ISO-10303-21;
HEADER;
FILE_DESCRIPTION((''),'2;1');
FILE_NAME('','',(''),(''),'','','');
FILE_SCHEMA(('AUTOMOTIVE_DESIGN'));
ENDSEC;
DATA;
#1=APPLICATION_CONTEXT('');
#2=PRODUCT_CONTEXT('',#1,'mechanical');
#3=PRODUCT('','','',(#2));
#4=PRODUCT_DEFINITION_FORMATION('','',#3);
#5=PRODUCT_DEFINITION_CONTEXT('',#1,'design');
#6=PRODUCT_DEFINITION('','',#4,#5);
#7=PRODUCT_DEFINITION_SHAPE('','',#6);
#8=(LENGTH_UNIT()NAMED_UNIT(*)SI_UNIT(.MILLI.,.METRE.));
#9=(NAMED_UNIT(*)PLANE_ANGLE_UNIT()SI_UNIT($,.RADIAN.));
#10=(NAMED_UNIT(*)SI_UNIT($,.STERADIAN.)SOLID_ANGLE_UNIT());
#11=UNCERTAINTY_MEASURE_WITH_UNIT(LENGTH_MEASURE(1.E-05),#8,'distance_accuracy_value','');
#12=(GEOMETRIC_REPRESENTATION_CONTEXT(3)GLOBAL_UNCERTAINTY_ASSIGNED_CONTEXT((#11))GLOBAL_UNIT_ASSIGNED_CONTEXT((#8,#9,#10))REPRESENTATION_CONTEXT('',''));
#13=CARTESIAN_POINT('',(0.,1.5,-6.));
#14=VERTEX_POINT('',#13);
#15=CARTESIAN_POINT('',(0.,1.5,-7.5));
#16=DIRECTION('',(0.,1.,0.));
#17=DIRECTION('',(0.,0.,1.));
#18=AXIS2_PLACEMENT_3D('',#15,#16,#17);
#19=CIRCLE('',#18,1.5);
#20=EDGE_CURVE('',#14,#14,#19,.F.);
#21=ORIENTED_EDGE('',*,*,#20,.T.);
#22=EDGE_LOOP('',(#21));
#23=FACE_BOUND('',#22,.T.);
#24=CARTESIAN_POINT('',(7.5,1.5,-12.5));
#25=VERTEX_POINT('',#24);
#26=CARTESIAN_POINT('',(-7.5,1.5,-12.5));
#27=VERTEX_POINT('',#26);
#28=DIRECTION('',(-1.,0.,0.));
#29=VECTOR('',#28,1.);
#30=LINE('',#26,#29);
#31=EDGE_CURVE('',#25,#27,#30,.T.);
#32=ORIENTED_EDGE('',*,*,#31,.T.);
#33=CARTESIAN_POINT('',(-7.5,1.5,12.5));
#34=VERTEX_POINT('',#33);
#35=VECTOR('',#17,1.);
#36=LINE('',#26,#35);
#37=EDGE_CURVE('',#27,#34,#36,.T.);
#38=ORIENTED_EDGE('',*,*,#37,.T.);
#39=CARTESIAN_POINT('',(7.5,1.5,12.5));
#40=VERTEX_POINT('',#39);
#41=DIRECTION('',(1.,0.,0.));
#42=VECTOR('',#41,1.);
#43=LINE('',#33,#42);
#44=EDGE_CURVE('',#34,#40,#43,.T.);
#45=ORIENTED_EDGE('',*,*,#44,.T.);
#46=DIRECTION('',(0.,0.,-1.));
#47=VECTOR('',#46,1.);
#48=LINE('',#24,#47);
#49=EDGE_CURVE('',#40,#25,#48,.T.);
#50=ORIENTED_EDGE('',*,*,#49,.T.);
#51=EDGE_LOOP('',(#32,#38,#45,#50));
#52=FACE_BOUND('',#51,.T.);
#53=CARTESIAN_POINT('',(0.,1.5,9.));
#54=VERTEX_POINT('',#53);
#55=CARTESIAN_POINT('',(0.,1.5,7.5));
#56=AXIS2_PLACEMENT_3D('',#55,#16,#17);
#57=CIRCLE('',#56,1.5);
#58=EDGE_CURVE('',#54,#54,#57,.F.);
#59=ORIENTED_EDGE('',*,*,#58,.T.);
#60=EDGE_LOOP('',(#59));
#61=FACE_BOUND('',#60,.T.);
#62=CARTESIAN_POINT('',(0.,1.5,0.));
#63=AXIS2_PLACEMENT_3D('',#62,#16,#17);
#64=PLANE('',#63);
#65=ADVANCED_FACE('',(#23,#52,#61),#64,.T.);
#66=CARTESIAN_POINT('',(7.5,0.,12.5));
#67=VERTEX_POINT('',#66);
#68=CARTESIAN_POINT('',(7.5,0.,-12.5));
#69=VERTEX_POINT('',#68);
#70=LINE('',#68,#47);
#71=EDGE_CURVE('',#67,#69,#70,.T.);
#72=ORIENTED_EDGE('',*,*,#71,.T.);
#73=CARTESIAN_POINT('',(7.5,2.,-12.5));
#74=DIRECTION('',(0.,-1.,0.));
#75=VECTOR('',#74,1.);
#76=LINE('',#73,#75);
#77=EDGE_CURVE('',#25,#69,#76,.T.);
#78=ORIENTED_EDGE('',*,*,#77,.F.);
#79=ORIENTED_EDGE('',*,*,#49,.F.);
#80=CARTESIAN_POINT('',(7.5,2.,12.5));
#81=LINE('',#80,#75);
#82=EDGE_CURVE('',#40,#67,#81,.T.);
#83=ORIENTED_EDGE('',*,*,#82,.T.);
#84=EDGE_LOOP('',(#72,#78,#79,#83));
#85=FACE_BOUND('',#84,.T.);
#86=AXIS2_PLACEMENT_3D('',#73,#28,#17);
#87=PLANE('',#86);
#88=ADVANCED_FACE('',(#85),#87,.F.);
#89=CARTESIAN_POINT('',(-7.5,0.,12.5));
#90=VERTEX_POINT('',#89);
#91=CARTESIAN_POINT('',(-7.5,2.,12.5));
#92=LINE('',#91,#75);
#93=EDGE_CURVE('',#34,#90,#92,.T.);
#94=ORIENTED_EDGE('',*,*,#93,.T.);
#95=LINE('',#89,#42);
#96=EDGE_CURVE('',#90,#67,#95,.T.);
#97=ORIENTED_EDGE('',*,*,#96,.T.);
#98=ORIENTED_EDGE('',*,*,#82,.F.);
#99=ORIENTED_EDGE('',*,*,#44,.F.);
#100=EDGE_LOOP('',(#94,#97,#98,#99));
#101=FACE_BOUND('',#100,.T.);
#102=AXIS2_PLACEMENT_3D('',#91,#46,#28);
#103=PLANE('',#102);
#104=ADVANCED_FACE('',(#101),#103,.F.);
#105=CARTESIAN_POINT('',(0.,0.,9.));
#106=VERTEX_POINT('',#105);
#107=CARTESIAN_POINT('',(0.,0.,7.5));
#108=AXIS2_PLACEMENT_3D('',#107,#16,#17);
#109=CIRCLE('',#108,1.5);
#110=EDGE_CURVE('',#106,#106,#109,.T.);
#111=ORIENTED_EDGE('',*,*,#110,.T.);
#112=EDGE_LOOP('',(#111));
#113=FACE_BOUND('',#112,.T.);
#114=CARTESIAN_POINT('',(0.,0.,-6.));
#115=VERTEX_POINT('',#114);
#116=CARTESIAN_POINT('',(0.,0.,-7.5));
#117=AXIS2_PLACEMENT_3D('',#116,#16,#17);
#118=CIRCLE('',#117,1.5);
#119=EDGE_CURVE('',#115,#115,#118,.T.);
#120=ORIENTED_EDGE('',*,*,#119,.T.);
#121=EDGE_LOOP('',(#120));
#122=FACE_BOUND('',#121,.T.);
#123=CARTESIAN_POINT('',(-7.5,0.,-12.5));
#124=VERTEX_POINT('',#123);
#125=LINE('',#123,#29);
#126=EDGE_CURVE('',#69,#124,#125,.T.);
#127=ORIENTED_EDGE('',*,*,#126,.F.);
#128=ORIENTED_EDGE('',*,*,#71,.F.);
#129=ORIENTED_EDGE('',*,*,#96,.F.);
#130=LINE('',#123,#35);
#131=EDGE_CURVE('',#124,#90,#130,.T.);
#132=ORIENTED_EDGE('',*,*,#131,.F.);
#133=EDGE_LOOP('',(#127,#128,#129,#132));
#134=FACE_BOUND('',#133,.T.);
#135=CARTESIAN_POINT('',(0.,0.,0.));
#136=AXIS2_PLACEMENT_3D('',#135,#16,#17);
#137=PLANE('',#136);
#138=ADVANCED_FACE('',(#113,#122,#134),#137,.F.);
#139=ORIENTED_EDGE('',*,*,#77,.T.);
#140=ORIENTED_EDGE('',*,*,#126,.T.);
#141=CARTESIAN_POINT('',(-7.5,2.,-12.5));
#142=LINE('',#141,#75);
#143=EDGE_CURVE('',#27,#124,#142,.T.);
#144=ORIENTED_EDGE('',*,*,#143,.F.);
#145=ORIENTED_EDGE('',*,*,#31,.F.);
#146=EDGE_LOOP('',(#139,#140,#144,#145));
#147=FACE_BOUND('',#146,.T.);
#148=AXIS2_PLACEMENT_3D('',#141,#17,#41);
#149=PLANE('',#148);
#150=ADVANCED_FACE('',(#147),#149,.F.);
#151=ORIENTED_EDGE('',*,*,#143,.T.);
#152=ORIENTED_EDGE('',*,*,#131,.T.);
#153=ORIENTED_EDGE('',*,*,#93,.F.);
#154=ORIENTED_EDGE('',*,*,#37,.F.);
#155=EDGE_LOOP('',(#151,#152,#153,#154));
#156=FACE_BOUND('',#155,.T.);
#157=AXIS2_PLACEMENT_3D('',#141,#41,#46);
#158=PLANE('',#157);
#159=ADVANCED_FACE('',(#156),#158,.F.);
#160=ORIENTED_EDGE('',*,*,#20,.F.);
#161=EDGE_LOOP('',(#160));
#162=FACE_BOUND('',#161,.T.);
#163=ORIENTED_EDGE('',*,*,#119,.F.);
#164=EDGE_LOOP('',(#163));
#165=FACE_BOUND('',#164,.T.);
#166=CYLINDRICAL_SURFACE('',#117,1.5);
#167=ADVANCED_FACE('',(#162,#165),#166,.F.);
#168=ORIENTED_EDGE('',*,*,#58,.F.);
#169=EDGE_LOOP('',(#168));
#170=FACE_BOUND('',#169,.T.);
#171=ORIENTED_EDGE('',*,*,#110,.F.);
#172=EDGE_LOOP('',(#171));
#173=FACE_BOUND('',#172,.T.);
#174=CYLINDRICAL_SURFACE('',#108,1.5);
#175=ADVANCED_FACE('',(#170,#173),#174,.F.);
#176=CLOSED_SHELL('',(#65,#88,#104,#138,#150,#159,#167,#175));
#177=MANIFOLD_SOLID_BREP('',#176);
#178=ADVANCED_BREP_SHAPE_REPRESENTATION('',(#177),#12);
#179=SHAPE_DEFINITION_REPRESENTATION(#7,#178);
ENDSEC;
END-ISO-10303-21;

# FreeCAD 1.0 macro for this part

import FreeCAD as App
import Part
import Sketcher

V = App.Vector


def add_polygon(sketch, points):
    """Adds a closed chain of lines whose ends are joined by coincident constraints."""
    first, n = sketch.GeometryCount, len(points)
    for a, b in zip(points, points[1:] + points[:1]):
        sketch.addGeometry(Part.LineSegment(App.Vector(*a, 0), App.Vector(*b, 0)), False)
    for i in range(n):
        sketch.addConstraint(Sketcher.Constraint("Coincident", first + i, 2, first + (i + 1) % n, 1))

doc = App.newDocument("Part")
body = doc.addObject("PartDesign::Body", "Body")

# Sketch on XZ plane
sketch1 = doc.addObject("Sketcher::SketchObject", "Sketch")
body.addObject(sketch1)
sketch1.AttachmentSupport = (doc.XZ_Plane, [""])
sketch1.MapMode = "FlatFace"
add_polygon(sketch1, [(-7.5, -12.5), (-7.5, 12.5), (7.5, 12.5), (7.5, -12.5)])  # lines 0-3
sketch1.addConstraint([
    Sketcher.Constraint("Vertical", 0),
    Sketcher.Constraint("Horizontal", 1),
    Sketcher.Constraint("Vertical", 2),
    Sketcher.Constraint("Horizontal", 3),
    Sketcher.Constraint("Symmetric", 0, 2, 2, 2, -1, 1),
    Sketcher.Constraint("DistanceX", 1, 1, 1, 2, 15.0),
    Sketcher.Constraint("DistanceY", 0, 1, 0, 2, 25.0),
])
pad1 = doc.addObject("PartDesign::Pad", "Pad")
body.addObject(pad1)
pad1.Profile = sketch1
pad1.Length = 2
pad1.Reversed = True

# Sketch on XZ plane
sketch2 = doc.addObject("Sketcher::SketchObject", "Sketch001")
body.addObject(sketch2)
sketch2.AttachmentSupport = (doc.XZ_Plane, [""])
sketch2.MapMode = "FlatFace"
sketch2.AttachmentOffset = App.Placement(V(0, 0, -2), App.Rotation())
sketch2.addGeometry([
    Part.Circle(V(0, -7.5, 0), V(0, 0, 1), 1.5),
    Part.Circle(V(0, 7.5, 0), V(0, 0, 1), 1.5),
], False)
sketch2.addConstraint([
    Sketcher.Constraint("Equal", 0, 1),
    Sketcher.Constraint("Symmetric", 0, 3, 1, 3, -1, 1),
    Sketcher.Constraint("PointOnObject", 0, 3, -2),
    Sketcher.Constraint("Diameter", 0, 3.0),
    Sketcher.Constraint("DistanceY", 0, 3, 1, 3, 15.0),
])
pocket1 = doc.addObject("PartDesign::Pocket", "Pocket")
body.addObject(pocket1)
pocket1.Profile = sketch2
pocket1.Length = 2
pocket1.Reversed = True

# Sketch on XZ plane
sketch3 = doc.addObject("Sketcher::SketchObject", "Sketch002")
body.addObject(sketch3)
sketch3.AttachmentSupport = (doc.XZ_Plane, [""])
sketch3.MapMode = "FlatFace"
sketch3.AttachmentOffset = App.Placement(V(0, 0, -2), App.Rotation())
add_polygon(sketch3, [(-13.305595, -19.549374), (-13.305595, 19.549374), (13.305595, 19.549374), (13.305595, -19.549374)])  # lines 0-3
sketch3.addConstraint([
    Sketcher.Constraint("Vertical", 0),
    Sketcher.Constraint("Horizontal", 1),
    Sketcher.Constraint("Vertical", 2),
    Sketcher.Constraint("Horizontal", 3),
    Sketcher.Constraint("Symmetric", 0, 2, 2, 2, -1, 1),
    Sketcher.Constraint("DistanceX", 1, 1, 1, 2, 26.61119),
    Sketcher.Constraint("DistanceY", 0, 1, 0, 2, 39.098748),
])
pocket2 = doc.addObject("PartDesign::Pocket", "Pocket001")
body.addObject(pocket2)
pocket2.Profile = sketch3
pocket2.Length = 0.5
pocket2.Reversed = True

doc.recompute()
